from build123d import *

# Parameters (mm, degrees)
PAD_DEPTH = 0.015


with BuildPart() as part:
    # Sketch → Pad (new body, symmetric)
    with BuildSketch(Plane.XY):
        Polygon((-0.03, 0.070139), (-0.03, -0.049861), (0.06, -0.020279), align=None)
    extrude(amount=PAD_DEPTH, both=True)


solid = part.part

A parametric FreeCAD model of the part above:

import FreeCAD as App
import Part
import Sketcher

V = App.Vector
Q = App.Units.Quantity


def add_polygon(sketch, points):
    """Adds a closed chain of lines whose ends are joined by coincident constraints."""
    first, n = sketch.GeometryCount, len(points)
    for a, b in zip(points, points[1:] + points[:1]):
        sketch.addGeometry(Part.LineSegment(App.Vector(*a, 0), App.Vector(*b, 0)), False)
    for i in range(n):
        sketch.addConstraint(Sketcher.Constraint("Coincident", first + i, 2, first + (i + 1) % n, 1))

doc = App.newDocument("Part")
body = doc.addObject("PartDesign::Body", "Body")

# Sketch on XY plane
sketch1 = body.newObject("Sketcher::SketchObject", "Sketch")
sketch1.AttachmentSupport = (doc.getObject("XY_Plane"), [""])
sketch1.MapMode = "FlatFace"
add_polygon(sketch1, [(-0.03, 0.070139), (-0.03, -0.049861), (0.06, -0.020279)])  # lines 0-2
sketch1.addConstraint(Sketcher.Constraint("Vertical", 0))
sketch1.addConstraint(Sketcher.Constraint("DistanceY", 0, 2, 0, 1, Q("0.12 mm")))
sketch1.addConstraint(Sketcher.Constraint("DistanceX", 0, 2, -1, 1, Q("0.03 mm")))
sketch1.addConstraint(Sketcher.Constraint("DistanceX", -1, 1, 1, 2, Q("0.06 mm")))
sketch1.addConstraint(Sketcher.Constraint("DistanceY", 0, 2, -1, 1, Q("0.049861 mm")))
sketch1.addConstraint(Sketcher.Constraint("DistanceY", 1, 2, -1, 1, Q("0.020279 mm")))
pad1 = body.newObject("PartDesign::Pad", "Pad")
pad1.Profile = sketch1
pad1.Length = 0.03
pad1.Midplane = True

doc.recompute()
